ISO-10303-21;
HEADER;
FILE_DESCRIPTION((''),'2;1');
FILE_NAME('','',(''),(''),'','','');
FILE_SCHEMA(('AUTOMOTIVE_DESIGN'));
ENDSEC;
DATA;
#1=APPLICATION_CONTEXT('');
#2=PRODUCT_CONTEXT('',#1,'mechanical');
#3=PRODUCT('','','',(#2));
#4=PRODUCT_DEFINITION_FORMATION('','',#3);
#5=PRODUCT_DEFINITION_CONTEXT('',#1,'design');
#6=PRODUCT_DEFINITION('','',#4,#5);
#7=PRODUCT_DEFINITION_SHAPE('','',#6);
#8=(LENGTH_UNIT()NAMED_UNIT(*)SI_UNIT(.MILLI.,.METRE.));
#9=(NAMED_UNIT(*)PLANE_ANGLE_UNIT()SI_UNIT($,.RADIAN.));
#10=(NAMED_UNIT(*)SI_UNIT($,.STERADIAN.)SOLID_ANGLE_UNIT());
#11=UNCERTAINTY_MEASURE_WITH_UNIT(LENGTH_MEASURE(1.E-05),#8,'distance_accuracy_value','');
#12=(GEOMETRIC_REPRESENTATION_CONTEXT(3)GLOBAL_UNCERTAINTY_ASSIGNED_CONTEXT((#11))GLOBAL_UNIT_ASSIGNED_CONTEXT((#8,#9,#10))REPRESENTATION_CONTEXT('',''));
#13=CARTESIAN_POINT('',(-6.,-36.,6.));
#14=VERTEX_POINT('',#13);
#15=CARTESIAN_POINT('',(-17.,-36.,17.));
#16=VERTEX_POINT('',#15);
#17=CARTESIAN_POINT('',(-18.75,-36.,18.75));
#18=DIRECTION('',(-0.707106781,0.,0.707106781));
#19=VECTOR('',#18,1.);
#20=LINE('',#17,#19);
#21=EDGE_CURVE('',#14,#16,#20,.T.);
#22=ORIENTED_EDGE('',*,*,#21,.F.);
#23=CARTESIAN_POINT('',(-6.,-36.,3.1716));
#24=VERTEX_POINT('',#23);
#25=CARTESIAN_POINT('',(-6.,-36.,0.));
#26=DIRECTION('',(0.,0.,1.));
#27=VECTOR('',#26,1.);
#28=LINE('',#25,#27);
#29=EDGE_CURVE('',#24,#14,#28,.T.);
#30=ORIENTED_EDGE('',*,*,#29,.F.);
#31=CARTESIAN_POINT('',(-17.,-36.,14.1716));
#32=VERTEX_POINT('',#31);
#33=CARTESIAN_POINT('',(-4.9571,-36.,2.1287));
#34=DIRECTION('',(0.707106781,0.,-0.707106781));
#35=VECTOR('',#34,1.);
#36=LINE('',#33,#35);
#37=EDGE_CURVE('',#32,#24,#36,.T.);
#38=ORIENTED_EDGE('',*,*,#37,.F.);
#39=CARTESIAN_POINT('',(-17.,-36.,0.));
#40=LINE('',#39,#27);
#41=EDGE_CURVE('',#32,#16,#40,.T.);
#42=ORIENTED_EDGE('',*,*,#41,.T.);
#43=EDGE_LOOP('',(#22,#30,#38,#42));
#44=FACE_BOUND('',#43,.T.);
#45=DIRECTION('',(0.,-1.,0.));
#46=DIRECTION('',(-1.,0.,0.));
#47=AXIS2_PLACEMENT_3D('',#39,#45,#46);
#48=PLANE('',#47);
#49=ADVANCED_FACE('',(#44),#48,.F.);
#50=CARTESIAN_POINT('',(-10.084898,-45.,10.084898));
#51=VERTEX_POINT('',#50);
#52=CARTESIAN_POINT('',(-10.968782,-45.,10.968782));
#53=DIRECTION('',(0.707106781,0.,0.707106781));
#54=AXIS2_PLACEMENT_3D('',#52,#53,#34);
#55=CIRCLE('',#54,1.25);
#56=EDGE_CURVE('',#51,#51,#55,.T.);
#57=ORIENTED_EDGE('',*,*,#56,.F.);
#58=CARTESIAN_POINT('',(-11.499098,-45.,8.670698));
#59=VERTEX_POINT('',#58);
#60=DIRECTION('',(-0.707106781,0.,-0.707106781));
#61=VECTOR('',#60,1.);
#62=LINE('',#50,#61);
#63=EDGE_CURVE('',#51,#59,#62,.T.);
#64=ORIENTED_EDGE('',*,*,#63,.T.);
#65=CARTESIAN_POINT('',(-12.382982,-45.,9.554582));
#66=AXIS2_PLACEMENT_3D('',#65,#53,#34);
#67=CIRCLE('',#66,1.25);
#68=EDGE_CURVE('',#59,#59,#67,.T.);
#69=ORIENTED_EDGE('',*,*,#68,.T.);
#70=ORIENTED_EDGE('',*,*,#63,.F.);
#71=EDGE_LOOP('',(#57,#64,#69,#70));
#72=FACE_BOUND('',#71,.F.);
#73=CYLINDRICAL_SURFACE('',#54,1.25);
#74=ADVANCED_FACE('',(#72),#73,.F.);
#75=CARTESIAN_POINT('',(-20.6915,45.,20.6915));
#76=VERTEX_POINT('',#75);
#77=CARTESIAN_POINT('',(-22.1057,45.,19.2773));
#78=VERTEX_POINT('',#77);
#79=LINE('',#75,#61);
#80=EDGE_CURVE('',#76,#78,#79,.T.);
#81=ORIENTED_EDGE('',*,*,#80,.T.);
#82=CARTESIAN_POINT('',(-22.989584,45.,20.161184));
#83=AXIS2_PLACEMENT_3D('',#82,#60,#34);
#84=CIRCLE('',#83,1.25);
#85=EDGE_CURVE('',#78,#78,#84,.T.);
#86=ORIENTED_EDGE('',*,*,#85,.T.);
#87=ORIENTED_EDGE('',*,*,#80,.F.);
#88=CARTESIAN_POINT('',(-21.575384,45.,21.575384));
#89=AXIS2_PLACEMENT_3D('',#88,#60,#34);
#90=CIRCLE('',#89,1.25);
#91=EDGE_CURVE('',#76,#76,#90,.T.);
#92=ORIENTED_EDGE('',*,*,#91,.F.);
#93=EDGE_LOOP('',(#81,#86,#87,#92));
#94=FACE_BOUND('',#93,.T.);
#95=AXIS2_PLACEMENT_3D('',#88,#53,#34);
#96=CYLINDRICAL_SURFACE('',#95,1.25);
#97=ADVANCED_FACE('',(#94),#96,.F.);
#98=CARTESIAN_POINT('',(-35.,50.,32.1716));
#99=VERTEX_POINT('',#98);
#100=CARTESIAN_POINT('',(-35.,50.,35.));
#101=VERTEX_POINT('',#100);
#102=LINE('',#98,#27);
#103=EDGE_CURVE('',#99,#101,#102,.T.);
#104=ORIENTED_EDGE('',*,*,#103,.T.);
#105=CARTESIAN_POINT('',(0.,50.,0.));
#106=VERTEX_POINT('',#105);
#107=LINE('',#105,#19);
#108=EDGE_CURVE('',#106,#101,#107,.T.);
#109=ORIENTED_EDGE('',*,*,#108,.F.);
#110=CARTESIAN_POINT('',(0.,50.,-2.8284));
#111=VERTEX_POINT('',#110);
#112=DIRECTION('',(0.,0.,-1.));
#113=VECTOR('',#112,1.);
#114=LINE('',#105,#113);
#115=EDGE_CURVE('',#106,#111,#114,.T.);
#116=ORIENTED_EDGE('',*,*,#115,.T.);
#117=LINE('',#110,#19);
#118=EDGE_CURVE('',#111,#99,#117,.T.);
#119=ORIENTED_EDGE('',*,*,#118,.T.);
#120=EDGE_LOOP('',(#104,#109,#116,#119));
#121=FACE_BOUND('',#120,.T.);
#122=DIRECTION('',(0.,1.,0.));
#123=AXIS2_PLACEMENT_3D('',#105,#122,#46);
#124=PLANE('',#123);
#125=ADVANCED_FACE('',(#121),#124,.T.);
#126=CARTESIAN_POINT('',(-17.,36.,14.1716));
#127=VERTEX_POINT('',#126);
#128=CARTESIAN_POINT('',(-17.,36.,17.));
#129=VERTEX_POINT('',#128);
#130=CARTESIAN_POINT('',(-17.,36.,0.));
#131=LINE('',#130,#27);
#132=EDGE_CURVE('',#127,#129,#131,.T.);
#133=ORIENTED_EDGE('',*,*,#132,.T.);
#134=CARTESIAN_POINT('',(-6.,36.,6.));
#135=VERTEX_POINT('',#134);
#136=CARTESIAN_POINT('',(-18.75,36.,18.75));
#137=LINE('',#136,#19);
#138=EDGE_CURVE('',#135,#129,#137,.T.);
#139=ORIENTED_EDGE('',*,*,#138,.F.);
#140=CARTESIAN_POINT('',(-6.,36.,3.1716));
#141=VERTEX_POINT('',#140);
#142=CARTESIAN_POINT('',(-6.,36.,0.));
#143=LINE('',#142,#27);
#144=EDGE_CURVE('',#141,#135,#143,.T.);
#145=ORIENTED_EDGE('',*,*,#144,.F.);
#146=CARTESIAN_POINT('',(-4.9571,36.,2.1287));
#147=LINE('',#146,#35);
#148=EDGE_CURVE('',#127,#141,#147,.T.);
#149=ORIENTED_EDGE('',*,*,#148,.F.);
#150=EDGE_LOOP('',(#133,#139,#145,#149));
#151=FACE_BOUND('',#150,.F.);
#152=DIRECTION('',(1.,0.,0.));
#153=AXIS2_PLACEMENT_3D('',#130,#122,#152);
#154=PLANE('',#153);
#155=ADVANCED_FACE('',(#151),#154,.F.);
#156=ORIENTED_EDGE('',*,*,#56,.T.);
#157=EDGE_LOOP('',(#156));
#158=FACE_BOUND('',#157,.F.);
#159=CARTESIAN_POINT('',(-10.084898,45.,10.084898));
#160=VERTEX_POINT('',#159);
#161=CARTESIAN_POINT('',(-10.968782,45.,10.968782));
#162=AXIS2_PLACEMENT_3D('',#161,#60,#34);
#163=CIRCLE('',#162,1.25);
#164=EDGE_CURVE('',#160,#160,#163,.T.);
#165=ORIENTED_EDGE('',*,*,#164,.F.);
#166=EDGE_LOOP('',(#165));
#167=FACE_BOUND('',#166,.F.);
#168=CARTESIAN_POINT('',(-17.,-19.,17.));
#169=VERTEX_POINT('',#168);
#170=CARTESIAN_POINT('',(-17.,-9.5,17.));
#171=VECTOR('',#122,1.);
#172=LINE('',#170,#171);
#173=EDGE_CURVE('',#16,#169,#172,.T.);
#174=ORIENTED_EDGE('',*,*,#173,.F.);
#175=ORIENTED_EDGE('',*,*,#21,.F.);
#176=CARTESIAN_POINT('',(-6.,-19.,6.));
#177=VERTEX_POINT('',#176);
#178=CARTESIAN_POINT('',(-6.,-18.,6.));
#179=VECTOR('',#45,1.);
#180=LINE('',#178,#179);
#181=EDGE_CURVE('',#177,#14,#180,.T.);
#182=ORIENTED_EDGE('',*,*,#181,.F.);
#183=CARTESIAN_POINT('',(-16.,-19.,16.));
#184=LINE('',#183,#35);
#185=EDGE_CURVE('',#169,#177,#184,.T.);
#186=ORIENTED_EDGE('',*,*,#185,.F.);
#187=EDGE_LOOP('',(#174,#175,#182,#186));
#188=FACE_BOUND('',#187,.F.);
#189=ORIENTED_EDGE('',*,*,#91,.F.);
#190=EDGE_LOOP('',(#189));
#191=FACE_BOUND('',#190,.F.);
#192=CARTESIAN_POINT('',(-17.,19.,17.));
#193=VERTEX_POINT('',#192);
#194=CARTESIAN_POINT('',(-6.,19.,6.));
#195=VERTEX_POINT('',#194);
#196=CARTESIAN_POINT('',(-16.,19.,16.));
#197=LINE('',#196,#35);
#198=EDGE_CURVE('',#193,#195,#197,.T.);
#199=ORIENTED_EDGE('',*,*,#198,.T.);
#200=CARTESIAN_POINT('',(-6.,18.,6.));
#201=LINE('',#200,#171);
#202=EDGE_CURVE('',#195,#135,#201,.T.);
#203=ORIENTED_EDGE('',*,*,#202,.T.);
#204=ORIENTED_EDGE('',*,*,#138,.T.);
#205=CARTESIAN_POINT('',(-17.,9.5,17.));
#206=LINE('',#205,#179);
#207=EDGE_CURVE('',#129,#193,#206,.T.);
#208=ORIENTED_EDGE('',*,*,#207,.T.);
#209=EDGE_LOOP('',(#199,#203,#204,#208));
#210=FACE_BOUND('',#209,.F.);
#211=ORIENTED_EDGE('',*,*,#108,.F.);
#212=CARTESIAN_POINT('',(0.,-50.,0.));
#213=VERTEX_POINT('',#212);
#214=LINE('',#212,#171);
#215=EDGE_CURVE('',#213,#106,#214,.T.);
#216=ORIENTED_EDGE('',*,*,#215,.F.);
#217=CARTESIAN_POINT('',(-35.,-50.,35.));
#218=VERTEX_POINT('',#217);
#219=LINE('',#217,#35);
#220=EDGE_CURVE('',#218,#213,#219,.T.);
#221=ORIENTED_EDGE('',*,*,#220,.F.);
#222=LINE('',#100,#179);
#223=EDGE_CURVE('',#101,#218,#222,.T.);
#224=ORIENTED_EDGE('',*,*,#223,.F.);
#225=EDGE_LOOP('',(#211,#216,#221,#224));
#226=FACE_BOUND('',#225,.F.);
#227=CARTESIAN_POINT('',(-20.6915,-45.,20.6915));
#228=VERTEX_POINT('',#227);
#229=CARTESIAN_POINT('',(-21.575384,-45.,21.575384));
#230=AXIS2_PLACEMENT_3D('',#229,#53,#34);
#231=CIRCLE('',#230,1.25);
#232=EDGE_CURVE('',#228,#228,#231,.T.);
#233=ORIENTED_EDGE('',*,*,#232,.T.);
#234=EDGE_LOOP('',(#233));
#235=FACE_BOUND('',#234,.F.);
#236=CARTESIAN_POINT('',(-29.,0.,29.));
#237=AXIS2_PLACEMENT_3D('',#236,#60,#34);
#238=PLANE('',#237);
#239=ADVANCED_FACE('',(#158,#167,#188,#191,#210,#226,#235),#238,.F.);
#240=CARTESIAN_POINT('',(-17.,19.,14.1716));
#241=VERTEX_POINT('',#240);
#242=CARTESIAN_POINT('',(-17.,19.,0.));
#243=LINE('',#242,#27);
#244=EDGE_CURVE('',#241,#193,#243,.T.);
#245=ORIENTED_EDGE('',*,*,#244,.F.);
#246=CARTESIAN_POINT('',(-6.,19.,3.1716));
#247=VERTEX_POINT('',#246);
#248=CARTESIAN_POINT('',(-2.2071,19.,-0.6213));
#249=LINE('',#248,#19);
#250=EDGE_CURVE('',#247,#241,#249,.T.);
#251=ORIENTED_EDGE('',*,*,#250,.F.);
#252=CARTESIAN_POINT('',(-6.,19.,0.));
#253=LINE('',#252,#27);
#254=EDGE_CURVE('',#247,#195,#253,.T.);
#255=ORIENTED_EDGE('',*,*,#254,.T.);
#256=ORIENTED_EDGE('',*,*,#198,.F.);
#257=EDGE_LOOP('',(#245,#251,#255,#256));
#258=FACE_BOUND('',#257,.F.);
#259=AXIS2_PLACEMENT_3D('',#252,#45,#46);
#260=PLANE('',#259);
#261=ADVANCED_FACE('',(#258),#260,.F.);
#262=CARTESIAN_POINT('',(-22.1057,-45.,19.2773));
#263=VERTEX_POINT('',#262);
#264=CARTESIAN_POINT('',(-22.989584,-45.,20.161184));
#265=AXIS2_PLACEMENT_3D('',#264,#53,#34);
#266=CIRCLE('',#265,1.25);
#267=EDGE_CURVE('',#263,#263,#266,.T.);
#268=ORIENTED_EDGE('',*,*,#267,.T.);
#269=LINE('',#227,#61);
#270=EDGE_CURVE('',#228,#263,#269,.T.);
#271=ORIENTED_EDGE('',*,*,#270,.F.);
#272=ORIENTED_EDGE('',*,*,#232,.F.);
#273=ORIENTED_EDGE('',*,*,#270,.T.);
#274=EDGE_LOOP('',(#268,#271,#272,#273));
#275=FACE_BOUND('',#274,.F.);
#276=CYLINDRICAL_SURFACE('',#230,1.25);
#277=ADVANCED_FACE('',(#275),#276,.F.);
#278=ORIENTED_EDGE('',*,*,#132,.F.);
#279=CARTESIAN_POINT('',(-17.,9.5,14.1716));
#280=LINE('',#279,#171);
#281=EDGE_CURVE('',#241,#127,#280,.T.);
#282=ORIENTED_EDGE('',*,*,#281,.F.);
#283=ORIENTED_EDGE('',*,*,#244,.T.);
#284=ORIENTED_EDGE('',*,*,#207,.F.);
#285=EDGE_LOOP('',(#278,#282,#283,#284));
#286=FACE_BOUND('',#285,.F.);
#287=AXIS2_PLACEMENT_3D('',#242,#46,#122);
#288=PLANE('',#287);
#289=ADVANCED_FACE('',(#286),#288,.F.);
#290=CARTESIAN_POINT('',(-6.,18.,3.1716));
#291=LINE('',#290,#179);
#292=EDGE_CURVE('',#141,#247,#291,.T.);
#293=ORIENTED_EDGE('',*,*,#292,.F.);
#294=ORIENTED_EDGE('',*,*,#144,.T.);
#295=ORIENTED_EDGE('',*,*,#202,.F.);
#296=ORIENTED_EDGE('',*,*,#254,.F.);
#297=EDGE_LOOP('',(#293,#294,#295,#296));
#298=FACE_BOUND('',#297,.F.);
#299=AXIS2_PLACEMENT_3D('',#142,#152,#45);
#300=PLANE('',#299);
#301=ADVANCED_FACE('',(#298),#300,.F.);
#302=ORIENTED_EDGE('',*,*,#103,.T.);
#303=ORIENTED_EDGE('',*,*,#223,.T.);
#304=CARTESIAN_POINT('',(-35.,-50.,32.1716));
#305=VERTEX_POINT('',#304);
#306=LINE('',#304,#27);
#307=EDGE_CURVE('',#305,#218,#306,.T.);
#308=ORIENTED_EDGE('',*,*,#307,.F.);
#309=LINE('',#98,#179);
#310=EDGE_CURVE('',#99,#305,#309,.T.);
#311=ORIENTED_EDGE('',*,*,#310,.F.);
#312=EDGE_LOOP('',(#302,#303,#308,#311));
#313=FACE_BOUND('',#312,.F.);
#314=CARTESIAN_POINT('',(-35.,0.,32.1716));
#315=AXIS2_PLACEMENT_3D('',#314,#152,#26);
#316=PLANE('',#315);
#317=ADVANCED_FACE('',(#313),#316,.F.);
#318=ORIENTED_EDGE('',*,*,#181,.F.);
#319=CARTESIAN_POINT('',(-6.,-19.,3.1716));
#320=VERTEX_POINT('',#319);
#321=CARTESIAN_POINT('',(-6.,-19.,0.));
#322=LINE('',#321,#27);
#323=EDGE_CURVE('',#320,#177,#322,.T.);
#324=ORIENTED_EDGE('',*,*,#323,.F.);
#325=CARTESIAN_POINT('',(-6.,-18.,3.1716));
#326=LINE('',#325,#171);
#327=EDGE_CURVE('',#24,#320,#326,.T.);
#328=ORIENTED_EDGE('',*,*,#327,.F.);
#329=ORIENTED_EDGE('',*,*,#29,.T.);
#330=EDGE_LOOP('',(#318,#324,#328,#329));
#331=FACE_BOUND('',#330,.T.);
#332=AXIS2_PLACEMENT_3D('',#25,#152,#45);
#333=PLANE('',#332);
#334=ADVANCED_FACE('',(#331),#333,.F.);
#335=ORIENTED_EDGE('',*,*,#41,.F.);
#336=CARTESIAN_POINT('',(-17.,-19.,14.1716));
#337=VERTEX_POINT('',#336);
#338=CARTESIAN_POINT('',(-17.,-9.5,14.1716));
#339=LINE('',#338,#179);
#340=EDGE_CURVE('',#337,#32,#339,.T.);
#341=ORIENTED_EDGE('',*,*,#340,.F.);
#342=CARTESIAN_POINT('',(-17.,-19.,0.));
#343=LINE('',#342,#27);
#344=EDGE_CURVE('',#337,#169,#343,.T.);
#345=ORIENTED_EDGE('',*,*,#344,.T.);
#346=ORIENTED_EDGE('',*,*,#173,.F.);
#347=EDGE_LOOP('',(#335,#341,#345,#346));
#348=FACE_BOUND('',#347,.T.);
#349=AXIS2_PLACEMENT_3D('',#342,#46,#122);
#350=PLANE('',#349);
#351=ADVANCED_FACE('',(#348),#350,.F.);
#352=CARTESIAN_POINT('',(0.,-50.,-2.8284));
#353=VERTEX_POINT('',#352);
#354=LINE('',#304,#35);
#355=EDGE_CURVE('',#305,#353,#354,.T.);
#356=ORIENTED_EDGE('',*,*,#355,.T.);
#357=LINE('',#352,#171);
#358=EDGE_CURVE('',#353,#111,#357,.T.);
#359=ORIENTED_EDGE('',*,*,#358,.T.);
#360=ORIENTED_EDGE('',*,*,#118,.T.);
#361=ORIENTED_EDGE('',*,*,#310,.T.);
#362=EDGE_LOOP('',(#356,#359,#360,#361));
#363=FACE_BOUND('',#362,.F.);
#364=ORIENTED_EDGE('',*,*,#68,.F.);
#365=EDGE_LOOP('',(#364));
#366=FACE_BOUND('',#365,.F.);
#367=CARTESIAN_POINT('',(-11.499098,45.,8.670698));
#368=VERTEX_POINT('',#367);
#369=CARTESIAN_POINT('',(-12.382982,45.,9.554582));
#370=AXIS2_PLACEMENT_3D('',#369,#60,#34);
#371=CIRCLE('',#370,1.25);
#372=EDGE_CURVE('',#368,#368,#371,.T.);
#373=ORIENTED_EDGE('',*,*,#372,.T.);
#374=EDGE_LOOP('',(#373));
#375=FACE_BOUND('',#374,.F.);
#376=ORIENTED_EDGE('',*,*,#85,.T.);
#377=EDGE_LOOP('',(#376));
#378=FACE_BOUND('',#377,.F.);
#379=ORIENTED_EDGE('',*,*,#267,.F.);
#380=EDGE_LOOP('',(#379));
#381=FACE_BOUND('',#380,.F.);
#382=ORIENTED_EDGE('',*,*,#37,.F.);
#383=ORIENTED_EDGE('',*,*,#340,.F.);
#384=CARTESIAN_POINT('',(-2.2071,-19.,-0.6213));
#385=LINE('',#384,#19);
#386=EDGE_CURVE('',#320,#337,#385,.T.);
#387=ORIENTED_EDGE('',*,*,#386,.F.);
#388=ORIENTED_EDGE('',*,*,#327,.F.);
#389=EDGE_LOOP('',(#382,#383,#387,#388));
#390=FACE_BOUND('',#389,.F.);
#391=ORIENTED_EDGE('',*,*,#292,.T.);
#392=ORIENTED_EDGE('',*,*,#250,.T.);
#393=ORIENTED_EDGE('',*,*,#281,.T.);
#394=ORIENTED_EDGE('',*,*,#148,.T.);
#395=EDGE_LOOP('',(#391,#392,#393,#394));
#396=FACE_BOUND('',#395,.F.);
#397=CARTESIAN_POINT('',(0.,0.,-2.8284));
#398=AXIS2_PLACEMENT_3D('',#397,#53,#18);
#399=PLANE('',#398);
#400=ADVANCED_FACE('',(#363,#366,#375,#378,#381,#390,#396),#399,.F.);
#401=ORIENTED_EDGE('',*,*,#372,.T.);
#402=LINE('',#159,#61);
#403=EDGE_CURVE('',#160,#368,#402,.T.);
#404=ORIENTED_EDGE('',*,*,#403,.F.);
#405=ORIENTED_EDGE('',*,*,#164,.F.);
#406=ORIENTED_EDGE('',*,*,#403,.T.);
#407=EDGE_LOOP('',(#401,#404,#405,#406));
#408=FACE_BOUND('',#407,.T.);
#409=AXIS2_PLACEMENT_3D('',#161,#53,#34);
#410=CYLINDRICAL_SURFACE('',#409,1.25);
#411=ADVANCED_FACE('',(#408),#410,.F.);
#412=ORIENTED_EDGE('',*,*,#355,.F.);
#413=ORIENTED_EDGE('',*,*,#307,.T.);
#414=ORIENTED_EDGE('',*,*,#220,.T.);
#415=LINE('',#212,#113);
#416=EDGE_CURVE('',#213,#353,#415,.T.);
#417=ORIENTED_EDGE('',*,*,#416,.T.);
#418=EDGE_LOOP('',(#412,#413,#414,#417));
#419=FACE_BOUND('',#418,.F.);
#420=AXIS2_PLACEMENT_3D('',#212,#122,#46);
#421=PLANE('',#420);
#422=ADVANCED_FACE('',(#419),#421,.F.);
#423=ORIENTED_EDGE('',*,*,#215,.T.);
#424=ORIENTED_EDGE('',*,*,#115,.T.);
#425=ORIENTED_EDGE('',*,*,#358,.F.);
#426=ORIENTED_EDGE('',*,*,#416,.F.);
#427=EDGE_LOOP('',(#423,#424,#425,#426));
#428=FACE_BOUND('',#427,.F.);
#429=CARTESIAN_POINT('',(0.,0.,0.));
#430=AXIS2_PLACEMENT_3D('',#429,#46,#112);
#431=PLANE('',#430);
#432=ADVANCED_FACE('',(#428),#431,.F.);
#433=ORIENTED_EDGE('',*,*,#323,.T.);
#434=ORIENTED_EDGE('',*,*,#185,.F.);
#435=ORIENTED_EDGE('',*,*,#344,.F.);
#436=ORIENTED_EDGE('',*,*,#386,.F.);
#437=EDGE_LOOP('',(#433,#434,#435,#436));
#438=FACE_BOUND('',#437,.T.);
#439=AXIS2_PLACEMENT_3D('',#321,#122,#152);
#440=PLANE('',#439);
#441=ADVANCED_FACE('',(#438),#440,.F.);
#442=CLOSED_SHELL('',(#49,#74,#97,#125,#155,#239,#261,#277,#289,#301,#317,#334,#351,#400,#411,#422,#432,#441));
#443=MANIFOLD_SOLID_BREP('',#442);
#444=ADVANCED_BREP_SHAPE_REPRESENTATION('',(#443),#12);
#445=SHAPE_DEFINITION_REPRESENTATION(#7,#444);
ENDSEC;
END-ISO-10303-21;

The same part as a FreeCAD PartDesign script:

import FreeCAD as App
import Part
import Sketcher

V = App.Vector
Q = App.Units.Quantity

doc = App.newDocument("Part")
body = doc.addObject("PartDesign::Body", "Body")

sketch1 = body.newObject("Sketcher::SketchObject", "Sketch")
sketch1.AttachmentSupport = (doc.getObject("XZ_Plane"), [""])
sketch1.MapMode = "FlatFace"
sketch1.addGeometry(Part.LineSegment(V(-29, 29, 0), V(0, 0, 0)), False)
sketch1.addGeometry(Part.LineSegment(V(0, 0, 0), V(0, -2.8284, 0)), False)
sketch1.addGeometry(Part.LineSegment(V(0, -2.8284, 0), V(-29, 26.1716, 0)), False)
sketch1.addGeometry(Part.LineSegment(V(-29, 26.1716, 0), V(-29, 29, 0)), False)
sketch1.addConstraint(Sketcher.Constraint("Coincident", 0, 2, 1, 1))
sketch1.addConstraint(Sketcher.Constraint("Coincident", 1, 2, 2, 1))
sketch1.addConstraint(Sketcher.Constraint("Coincident", 2, 2, 3, 1))
sketch1.addConstraint(Sketcher.Constraint("Coincident", 3, 2, 0, 1))
sketch1.addConstraint(Sketcher.Constraint("Vertical", 1))
sketch1.addConstraint(Sketcher.Constraint("Vertical", 3))
sketch1.addConstraint(Sketcher.Constraint("Coincident", 0, 2, -1, 1))
sketch1.addConstraint(Sketcher.Constraint("Parallel", 0, 2))
sketch1.addConstraint(Sketcher.Constraint("Angle", 0, Q("-45 deg")))
sketch1.addConstraint(Sketcher.Constraint("DistanceX", 2, 2, -1, 1, Q("29 mm")))
sketch1.addConstraint(Sketcher.Constraint("DistanceY", 1, 2, 1, 1, Q("2.8284 mm")))
pad1 = body.newObject("PartDesign::Pad", "Pad")
pad1.Profile = sketch1
pad1.Length = 100
pad1.Midplane = True

sketch2 = body.newObject("Sketcher::SketchObject", "Sketch001")
sketch2.AttachmentSupport = (doc.getObject("XY_Plane"), [""])
sketch2.MapMode = "FlatFace"
sketch2.addGeometry(Part.LineSegment(V(-6, 36, 0), V(-17, 36, 0)), False)
sketch2.addGeometry(Part.LineSegment(V(-17, 36, 0), V(-17, 19, 0)), False)
sketch2.addGeometry(Part.LineSegment(V(-17, 19, 0), V(-6, 19, 0)), False)
sketch2.addGeometry(Part.LineSegment(V(-6, 19, 0), V(-6, 36, 0)), False)
sketch2.addConstraint(Sketcher.Constraint("Coincident", 0, 2, 1, 1))
sketch2.addConstraint(Sketcher.Constraint("Coincident", 1, 2, 2, 1))
sketch2.addConstraint(Sketcher.Constraint("Coincident", 2, 2, 3, 1))
sketch2.addConstraint(Sketcher.Constraint("Coincident", 3, 2, 0, 1))
sketch2.addConstraint(Sketcher.Constraint("Horizontal", 0))
sketch2.addConstraint(Sketcher.Constraint("Vertical", 1))
sketch2.addConstraint(Sketcher.Constraint("Horizontal", 2))
sketch2.addConstraint(Sketcher.Constraint("Vertical", 3))
sketch2.addConstraint(Sketcher.Constraint("DistanceX", 0, 2, 0, 1, Q("11 mm")))
sketch2.addConstraint(Sketcher.Constraint("DistanceY", 1, 2, 1, 1, Q("17 mm")))
sketch2.addConstraint(Sketcher.Constraint("DistanceX", 0, 2, -1, 1, Q("17 mm")))
sketch2.addConstraint(Sketcher.Constraint("DistanceY", -1, 1, 0, 2, Q("36 mm")))
pocket1 = body.newObject("PartDesign::Pocket", "Pocket")
pocket1.Profile = sketch2
pocket1.Length = 17
pocket1.Reversed = True
doc.recompute()

mirrored = body.newObject("PartDesign::Mirrored", "Mirrored")
mirrored.Originals = [pocket1]
mirrored.MirrorPlane = (doc.getObject("XZ_Plane"), [""])
body.Tip = mirrored

sketch3 = body.newObject("Sketcher::SketchObject", "Sketch002")
sketch3.Placement = App.Placement(V(0, -50, 0), App.Rotation(V(0.707106781, 0, -0.707106781), V(0, 0.999999999, 0), V(0.707106781, 0, 0.707106781), "ZXY"))
sketch3.addGeometry(Part.Circle(V(-30.5122, 5, 0), V(0, 0, 1), 1.25), False)
sketch3.addGeometry(Part.Circle(V(-15.5122, 5, 0), V(0, 0, 1), 1.25), False)
sketch3.addConstraint(Sketcher.Constraint("Equal", 0, 1))
sketch3.addConstraint(Sketcher.Constraint("Horizontal", 0, 3, 1, 3))
sketch3.addConstraint(Sketcher.Constraint("Diameter", 0, Q("2.5 mm")))
sketch3.addConstraint(Sketcher.Constraint("DistanceY", -1, 1, 0, 3, Q("5 mm")))
sketch3.addConstraint(Sketcher.Constraint("DistanceX", 0, 3, 1, 3, Q("15 mm")))
sketch3.addConstraint(Sketcher.Constraint("DistanceX", 0, 3, -1, 1, Q("30.5122 mm")))
pocket2 = body.newObject("PartDesign::Pocket", "Pocket001")
pocket2.Profile = sketch3
pocket2.Type = "UpToFirst"
doc.recompute()

mirrored2 = body.newObject("PartDesign::Mirrored", "Mirrored001")
mirrored2.Originals = [pocket2]
mirrored2.MirrorPlane = (doc.getObject("XZ_Plane"), [""])
body.Tip = mirrored2

sketch4 = body.newObject("Sketcher::SketchObject", "Sketch003")
sketch4.AttachmentSupport = (doc.getObject("XZ_Plane"), [""])
sketch4.MapMode = "FlatFace"
sketch4.addGeometry(Part.LineSegment(V(-35, 35, 0), V(-29, 29, 0)), False)
sketch4.addGeometry(Part.LineSegment(V(-29, 29, 0), V(-29, 26.1716, 0)), False)
sketch4.addGeometry(Part.LineSegment(V(-29, 26.1716, 0), V(-35, 32.1716, 0)), False)
sketch4.addGeometry(Part.LineSegment(V(-35, 32.1716, 0), V(-35, 35, 0)), False)
sketch4.addConstraint(Sketcher.Constraint("Coincident", 0, 2, 1, 1))
sketch4.addConstraint(Sketcher.Constraint("Coincident", 1, 2, 2, 1))
sketch4.addConstraint(Sketcher.Constraint("Coincident", 2, 2, 3, 1))
sketch4.addConstraint(Sketcher.Constraint("Coincident", 3, 2, 0, 1))
sketch4.addConstraint(Sketcher.Constraint("Vertical", 1))
sketch4.addConstraint(Sketcher.Constraint("Vertical", 3))
sketch4.addConstraint(Sketcher.Constraint("Parallel", 0, 2))
sketch4.addConstraint(Sketcher.Constraint("Angle", 0, Q("-45 deg")))
sketch4.addConstraint(Sketcher.Constraint("DistanceX", 0, 2, -1, 1, Q("29 mm")))
sketch4.addConstraint(Sketcher.Constraint("DistanceY", -1, 1, 0, 2, Q("29 mm")))
sketch4.addConstraint(Sketcher.Constraint("DistanceX", 2, 2, 0, 2, Q("6 mm")))
sketch4.addConstraint(Sketcher.Constraint("DistanceY", 1, 2, 1, 1, Q("2.8284 mm")))
pad2 = body.newObject("PartDesign::Pad", "Pad001")
pad2.Profile = sketch4
pad2.Length = 100
pad2.Midplane = True

doc.recompute()
